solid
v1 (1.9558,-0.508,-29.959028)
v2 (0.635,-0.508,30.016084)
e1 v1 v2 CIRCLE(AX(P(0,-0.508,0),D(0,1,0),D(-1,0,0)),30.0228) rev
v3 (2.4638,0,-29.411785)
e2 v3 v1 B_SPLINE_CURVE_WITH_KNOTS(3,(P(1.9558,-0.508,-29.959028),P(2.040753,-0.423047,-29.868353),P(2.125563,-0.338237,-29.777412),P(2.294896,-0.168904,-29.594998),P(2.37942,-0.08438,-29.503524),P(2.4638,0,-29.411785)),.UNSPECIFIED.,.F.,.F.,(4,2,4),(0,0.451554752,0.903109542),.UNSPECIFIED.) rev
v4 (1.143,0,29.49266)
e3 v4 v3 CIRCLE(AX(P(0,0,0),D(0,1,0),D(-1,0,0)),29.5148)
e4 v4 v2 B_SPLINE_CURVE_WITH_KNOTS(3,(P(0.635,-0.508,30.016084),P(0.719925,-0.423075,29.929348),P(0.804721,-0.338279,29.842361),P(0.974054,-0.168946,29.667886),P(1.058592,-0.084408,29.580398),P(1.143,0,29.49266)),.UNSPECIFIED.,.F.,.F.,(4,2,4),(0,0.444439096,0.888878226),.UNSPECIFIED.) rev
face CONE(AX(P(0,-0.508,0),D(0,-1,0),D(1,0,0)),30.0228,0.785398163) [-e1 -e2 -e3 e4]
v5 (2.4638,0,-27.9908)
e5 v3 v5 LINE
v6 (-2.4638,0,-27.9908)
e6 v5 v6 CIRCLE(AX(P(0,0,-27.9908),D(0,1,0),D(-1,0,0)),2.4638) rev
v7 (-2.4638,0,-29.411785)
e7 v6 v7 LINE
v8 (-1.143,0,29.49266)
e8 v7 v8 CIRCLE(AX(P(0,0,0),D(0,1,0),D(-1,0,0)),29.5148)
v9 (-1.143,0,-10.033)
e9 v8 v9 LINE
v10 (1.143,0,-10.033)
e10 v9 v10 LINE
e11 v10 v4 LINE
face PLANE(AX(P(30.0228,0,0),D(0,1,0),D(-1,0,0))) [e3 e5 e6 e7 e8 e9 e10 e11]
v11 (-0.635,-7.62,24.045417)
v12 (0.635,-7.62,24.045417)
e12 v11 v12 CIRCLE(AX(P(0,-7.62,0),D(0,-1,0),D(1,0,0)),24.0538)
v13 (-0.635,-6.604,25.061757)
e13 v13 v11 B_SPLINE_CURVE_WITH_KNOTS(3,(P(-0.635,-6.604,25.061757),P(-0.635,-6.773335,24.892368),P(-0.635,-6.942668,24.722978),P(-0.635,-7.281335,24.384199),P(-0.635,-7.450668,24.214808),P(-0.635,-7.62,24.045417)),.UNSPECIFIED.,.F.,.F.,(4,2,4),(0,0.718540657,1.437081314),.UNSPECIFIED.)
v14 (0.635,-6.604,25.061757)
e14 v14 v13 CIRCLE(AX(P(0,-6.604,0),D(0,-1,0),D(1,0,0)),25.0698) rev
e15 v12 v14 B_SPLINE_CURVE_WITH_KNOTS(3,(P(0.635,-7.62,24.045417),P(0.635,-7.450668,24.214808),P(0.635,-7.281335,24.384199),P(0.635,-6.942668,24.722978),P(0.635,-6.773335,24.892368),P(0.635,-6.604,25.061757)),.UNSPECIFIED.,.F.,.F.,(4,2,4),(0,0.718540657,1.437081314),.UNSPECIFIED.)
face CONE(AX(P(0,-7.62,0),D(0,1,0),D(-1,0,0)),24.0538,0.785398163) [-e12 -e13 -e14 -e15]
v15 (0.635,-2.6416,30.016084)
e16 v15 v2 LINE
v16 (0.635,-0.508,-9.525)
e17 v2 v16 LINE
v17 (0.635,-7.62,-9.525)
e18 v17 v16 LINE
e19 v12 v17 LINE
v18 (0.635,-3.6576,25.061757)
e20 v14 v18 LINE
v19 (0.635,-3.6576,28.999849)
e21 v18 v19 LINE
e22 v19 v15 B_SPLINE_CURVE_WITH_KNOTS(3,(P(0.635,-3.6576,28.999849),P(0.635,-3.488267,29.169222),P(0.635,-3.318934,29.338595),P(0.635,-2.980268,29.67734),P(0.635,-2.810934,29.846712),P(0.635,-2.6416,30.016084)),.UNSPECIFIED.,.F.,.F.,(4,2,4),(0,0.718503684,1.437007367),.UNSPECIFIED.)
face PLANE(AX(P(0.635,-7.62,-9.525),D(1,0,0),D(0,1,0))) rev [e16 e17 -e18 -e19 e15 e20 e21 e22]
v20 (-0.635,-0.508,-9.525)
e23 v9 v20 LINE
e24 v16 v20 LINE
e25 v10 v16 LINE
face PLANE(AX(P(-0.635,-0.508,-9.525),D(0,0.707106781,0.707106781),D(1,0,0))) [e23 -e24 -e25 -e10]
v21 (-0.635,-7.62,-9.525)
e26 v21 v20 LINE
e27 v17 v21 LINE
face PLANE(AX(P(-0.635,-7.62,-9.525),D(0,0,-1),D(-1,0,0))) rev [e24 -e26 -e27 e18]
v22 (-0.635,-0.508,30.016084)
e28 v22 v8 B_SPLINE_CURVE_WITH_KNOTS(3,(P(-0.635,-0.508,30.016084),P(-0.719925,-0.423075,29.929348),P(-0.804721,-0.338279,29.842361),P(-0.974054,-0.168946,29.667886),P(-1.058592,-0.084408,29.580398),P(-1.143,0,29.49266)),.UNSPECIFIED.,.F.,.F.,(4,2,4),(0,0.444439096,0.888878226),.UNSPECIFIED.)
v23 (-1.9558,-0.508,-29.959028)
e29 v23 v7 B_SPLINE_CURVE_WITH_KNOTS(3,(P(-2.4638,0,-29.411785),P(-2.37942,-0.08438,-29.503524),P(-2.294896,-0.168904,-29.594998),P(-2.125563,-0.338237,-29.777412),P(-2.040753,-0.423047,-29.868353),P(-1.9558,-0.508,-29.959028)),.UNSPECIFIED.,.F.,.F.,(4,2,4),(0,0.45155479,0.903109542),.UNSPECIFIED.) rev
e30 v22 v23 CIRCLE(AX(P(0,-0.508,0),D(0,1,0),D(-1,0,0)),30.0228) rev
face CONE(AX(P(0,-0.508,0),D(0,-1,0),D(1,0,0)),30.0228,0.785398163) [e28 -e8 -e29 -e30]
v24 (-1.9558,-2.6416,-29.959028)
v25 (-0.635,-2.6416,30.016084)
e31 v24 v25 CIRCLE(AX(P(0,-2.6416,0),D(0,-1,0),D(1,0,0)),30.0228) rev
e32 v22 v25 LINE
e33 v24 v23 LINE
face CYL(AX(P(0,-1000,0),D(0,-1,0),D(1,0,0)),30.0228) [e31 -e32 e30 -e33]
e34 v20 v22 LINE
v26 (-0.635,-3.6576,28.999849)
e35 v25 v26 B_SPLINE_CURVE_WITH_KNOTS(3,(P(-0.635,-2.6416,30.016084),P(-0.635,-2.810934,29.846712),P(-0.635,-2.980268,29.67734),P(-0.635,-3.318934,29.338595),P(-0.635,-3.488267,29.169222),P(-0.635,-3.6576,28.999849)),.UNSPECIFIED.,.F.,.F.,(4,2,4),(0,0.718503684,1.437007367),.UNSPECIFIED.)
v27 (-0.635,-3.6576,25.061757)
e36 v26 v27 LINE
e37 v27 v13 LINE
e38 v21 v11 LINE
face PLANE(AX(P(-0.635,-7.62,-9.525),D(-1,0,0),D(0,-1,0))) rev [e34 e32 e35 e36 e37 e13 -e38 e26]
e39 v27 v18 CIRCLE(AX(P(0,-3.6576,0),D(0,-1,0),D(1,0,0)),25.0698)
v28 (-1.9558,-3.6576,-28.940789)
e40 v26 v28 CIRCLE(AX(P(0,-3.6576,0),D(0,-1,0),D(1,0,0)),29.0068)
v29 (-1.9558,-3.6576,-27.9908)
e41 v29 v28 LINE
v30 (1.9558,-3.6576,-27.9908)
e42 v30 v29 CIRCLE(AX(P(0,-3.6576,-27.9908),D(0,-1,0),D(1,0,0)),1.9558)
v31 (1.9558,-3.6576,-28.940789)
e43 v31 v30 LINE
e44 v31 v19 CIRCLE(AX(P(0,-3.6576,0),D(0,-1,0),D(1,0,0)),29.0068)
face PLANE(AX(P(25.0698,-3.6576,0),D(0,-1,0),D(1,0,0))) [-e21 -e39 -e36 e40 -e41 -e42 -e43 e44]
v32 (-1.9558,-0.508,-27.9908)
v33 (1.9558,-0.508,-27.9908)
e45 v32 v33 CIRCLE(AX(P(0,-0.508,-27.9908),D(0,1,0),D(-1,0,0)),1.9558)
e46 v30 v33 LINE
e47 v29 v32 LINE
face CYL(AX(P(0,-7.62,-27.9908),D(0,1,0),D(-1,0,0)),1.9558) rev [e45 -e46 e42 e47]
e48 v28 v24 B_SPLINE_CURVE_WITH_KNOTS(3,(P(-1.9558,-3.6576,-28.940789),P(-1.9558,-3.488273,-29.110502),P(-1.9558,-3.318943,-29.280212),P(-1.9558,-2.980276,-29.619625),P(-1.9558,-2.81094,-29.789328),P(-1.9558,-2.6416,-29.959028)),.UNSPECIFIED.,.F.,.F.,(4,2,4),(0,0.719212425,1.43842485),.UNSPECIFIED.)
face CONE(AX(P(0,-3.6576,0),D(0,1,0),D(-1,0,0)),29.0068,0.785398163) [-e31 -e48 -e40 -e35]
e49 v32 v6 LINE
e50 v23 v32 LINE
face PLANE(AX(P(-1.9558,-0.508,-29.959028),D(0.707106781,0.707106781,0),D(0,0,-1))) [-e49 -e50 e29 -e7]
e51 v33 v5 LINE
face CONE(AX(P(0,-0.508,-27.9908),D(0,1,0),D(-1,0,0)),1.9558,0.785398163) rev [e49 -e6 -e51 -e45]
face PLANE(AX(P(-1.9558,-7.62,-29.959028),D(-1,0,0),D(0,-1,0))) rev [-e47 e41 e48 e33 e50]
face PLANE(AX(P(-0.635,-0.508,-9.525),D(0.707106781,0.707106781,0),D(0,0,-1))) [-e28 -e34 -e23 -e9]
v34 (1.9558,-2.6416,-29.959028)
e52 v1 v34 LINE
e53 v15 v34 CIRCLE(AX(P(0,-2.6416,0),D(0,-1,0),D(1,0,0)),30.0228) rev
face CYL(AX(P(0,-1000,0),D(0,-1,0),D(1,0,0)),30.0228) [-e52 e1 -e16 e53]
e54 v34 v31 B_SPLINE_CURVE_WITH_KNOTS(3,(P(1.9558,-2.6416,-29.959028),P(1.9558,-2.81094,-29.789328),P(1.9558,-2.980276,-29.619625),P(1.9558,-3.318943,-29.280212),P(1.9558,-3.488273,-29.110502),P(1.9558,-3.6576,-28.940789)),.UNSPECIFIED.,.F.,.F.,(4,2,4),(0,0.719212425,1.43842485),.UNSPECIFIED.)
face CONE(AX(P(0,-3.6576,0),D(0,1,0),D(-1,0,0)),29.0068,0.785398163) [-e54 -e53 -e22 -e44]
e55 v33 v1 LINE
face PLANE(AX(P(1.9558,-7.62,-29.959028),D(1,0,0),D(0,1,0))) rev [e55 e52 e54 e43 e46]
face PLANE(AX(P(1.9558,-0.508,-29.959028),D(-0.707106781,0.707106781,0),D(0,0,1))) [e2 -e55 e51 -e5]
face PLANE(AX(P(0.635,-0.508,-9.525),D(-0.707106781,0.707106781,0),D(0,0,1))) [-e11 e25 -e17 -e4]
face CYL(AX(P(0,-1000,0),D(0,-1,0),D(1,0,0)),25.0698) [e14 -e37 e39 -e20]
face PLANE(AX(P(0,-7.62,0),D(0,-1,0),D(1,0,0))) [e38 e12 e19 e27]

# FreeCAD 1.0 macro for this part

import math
import FreeCAD as App
import Part
import Sketcher
Q = App.Units.Quantity


def edges_at(feature, points):
    """Names of the edges that pass closest to the given points."""
    edges = feature.Shape.Edges
    near = lambda p: min(range(len(edges)), key=lambda i: edges[i].distToShape(Part.Vertex(*p))[0])
    return sorted({f"Edge{near(p) + 1}" for p in points})


def add_polygon(sketch, points):
    """Adds a closed chain of lines whose ends are joined by coincident constraints."""
    first, n = sketch.GeometryCount, len(points)
    for a, b in zip(points, points[1:] + points[:1]):
        sketch.addGeometry(Part.LineSegment(App.Vector(*a, 0), App.Vector(*b, 0)), False)
    for i in range(n):
        sketch.addConstraint(Sketcher.Constraint("Coincident", first + i, 2, first + (i + 1) % n, 1))

doc = App.newDocument("Part")
body = doc.addObject("PartDesign::Body", "Body")

# Sketch on XY plane
sketch1 = body.newObject("Sketcher::SketchObject", "Sketch")
sketch1.AttachmentSupport = (doc.getObject("XY_Plane"), [""])
sketch1.MapMode = "FlatFace"
add_polygon(sketch1, [(0, 0), (0, -7.62), (25.0698, -7.62), (25.0698, -3.6576), (30.0228, -3.6576), (30.0228, 0)])  # lines 0-5
sketch1.addConstraint([
    Sketcher.Constraint("Vertical", 0),
    Sketcher.Constraint("Horizontal", 1),
    Sketcher.Constraint("Vertical", 2),
    Sketcher.Constraint("Horizontal", 3),
    Sketcher.Constraint("Vertical", 4),
    Sketcher.Constraint("Horizontal", 5),
    Sketcher.Constraint("Coincident", 5, 2, -1, 1),
    Sketcher.Constraint("DistanceY", 0, 2, 0, 1, Q("0.3 in")),
    Sketcher.Constraint("DistanceX", 1, 1, 1, 2, Q("0.987 in")),
    Sketcher.Constraint("DistanceX", 3, 1, 3, 2, Q("0.195 in")),
    Sketcher.Constraint("DistanceY", 2, 1, 2, 2, Q("0.156 in")),
])
revolution = body.newObject("PartDesign::Revolution", "Revolution")
revolution.Profile = sketch1
revolution.ReferenceAxis = (sketch1, ["V_Axis"])
revolution.Angle = 360

# Sketch on XZ plane
sketch2 = body.newObject("Sketcher::SketchObject", "Sketch001")
sketch2.AttachmentSupport = (doc.getObject("XZ_Plane"), [""])
sketch2.MapMode = "FlatFace"
sketch2.addGeometry([
    Part.LineSegment(App.Vector(0.635, -9.525, 0), App.Vector(-0.635, -9.525, 0)),
    Part.LineSegment(App.Vector(-0.635, -9.525, 0), App.Vector(-0.635, 30.016084, 0)),
    Part.ArcOfCircle(Part.Circle(App.Vector(0, -0.000001, 0), App.Vector(0, 0, 1), 30.022801), math.radians(88.78807), math.radians(91.21193)),
    Part.LineSegment(App.Vector(0.635, 30.016084, 0), App.Vector(0.635, -9.525, 0)),
], False)
sketch2.addConstraint([
    Sketcher.Constraint("Coincident", 0, 2, 1, 1),
    Sketcher.Constraint("Coincident", 1, 2, 2, 2),
    Sketcher.Constraint("Coincident", 2, 1, 3, 1),
    Sketcher.Constraint("Coincident", 3, 2, 0, 1),
    Sketcher.Constraint("Horizontal", 0),
    Sketcher.Constraint("Vertical", 1),
    Sketcher.Constraint("Vertical", 3),
    Sketcher.Constraint("Coincident", 2, 3, -1, 1),
    Sketcher.Constraint("Horizontal", 1, 2, 2, 1),
    Sketcher.Constraint("Radius", 2, Q("1.182 in")),
    Sketcher.Constraint("DistanceX", 0, 2, 0, 1, Q("0.05 in")),
    Sketcher.Constraint("DistanceY", 0, 2, -1, 1, Q("0.375 in")),
])
pocket1 = body.newObject("PartDesign::Pocket", "Pocket")
pocket1.Profile = sketch2
pocket1.Type = "ThroughAll"
pocket1.Reversed = True

# Sketch on XZ plane
sketch3 = body.newObject("Sketcher::SketchObject", "Sketch002")
sketch3.AttachmentSupport = (doc.getObject("XZ_Plane"), [""])
sketch3.MapMode = "FlatFace"
sketch3.addGeometry([
    Part.LineSegment(App.Vector(-1.9558, -29.959028, 0), App.Vector(-1.9558, -27.9908, 0)),
    Part.ArcOfCircle(Part.Circle(App.Vector(0, -27.9908, 0), App.Vector(0, 0, 1), 1.9558), math.radians(0), math.radians(180)),
    Part.LineSegment(App.Vector(1.9558, -27.9908, 0), App.Vector(1.9558, -29.959028, 0)),
    Part.ArcOfCircle(Part.Circle(App.Vector(0, 0, 0), App.Vector(0, 0, 1), 30.0228), math.radians(-93.735111), math.radians(-86.264889)),
], False)
sketch3.addConstraint([
    Sketcher.Constraint("Tangent", 0, 2, 1, 2),
    Sketcher.Constraint("Tangent", 1, 1, 2, 1),
    Sketcher.Constraint("Coincident", 2, 2, 3, 2),
    Sketcher.Constraint("Coincident", 3, 1, 0, 1),
    Sketcher.Constraint("Vertical", 0),
    Sketcher.Constraint("Vertical", 2),
    Sketcher.Constraint("Coincident", 3, 3, -1, 1),
    Sketcher.Constraint("PointOnObject", 1, 3, -2),
    Sketcher.Constraint("Radius", 1, Q("0.077 in")),
    Sketcher.Constraint("Radius", 3, Q("1.182 in")),
    Sketcher.Constraint("DistanceY", 1, 3, -1, 1, Q("1.102 in")),
])
pocket2 = body.newObject("PartDesign::Pocket", "Pocket001")
pocket2.Profile = sketch3
pocket2.Type = "ThroughAll"
pocket2.Reversed = True
doc.recompute()

chamfer = body.newObject("PartDesign::Chamfer", "Chamfer")
chamfer.Base = (pocket2, edges_at(pocket2, [(-30.016, -3.658, 0.661), (-17.501, -7.62, -17.95), (30.016, -3.658, 0.661)]))
chamfer.Size = Q("0.04 in")
doc.recompute()

chamfer2 = body.newObject("PartDesign::Chamfer", "Chamfer001")
chamfer2.Base = (chamfer, edges_at(chamfer, [
    (-30.016, 0, 0.661),
    (-0.635, 0, 10.246),
    (0.635, 0, 10.246),
    (0, 0, -9.525),
    (30.016, 0, 0.661),
    (-1.956, 0, -28.975),
    (0, 0, -26.035),
    (1.956, 0, -28.975),
]))
chamfer2.Size = Q("0.02 in")

doc.recompute()
